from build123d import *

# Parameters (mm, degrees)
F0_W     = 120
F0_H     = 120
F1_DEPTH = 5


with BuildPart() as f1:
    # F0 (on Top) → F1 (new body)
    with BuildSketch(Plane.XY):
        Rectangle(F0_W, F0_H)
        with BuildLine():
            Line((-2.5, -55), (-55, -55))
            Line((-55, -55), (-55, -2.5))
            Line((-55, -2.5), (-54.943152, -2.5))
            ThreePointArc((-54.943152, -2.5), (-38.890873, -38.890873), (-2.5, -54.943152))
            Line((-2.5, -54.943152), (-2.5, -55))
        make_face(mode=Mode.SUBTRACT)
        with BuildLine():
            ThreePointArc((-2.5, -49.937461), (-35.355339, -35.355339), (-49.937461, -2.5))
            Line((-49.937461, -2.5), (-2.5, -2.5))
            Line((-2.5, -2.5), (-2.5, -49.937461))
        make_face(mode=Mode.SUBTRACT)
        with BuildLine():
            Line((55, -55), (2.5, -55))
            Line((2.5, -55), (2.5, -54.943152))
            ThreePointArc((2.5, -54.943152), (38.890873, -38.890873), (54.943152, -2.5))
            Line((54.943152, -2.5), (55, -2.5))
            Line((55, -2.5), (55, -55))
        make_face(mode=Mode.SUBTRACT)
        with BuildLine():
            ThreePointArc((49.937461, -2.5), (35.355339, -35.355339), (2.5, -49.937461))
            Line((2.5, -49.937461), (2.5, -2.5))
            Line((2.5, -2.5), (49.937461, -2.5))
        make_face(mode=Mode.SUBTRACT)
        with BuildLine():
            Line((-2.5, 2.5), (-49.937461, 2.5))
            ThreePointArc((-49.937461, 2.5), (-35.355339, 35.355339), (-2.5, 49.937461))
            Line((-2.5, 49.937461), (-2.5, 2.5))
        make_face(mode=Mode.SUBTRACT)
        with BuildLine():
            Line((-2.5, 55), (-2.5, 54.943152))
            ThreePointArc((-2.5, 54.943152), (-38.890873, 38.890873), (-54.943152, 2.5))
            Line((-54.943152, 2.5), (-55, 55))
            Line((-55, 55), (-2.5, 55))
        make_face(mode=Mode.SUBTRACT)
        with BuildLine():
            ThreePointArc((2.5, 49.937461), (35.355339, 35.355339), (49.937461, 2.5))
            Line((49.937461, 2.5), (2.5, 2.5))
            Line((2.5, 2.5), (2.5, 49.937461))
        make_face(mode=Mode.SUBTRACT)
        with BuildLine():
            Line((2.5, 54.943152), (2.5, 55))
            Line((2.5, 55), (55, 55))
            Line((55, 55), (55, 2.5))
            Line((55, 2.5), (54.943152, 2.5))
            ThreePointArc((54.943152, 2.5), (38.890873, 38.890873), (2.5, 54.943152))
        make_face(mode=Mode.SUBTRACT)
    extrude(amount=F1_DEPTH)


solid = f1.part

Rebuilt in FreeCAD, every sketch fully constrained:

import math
import FreeCAD as App
import Part
import Sketcher
Q = App.Units.Quantity

doc = App.newDocument("Part")
params = doc.addObject("Spreadsheet::Sheet", "Params")
for row, (alias, value) in enumerate([
    ("sketch1_radius", "54.999998 mm"),
    ("sketch1_radius2", "50.000001 mm"),
    ("sketch1_width", "120 mm"),
    ("sketch1_width2", "52.5 mm"),
    ("pad1_length", "5 mm"),
], start=1):
    params.set(f"A{row}", alias)
    params.set(f"B{row}", "=" + value)
    params.setAlias(f"B{row}", alias)

body = doc.addObject("PartDesign::Body", "Body")

# Sketch on XY plane
sketch1 = doc.addObject("Sketcher::SketchObject", "Sketch")
body.addObject(sketch1)
sketch1.AttachmentSupport = (doc.XY_Plane, [""])
sketch1.MapMode = "FlatFace"
sketch1.addGeometry(Part.LineSegment(App.Vector(-60, 60, 0), App.Vector(-60, -60, 0)), False)
sketch1.addGeometry(Part.LineSegment(App.Vector(-60, -60, 0), App.Vector(60, -60, 0)), False)
sketch1.addGeometry(Part.LineSegment(App.Vector(60, -60, 0), App.Vector(60, 60, 0)), False)
sketch1.addGeometry(Part.LineSegment(App.Vector(60, 60, 0), App.Vector(-60, 60, 0)), False)
sketch1.addGeometry(Part.LineSegment(App.Vector(-2.5, -54.943152, 0), App.Vector(-2.5, -55, 0)), False)
sketch1.addGeometry(Part.LineSegment(App.Vector(-2.5, -55, 0), App.Vector(-55, -55, 0)), False)
sketch1.addGeometry(Part.LineSegment(App.Vector(-55, -55, 0), App.Vector(-55, -2.5, 0)), False)
sketch1.addGeometry(Part.LineSegment(App.Vector(-55, -2.5, 0), App.Vector(-54.943152, -2.5, 0)), False)
sketch1.addGeometry(Part.ArcOfCircle(Part.Circle(App.Vector(-0.000001, -0.000001, 0), App.Vector(0, 0, 1), 54.999998), math.radians(-177.39475), math.radians(-92.60525)), False)
sketch1.addGeometry(Part.LineSegment(App.Vector(-2.5, -2.5, 0), App.Vector(-2.5, -49.937461, 0)), False)
sketch1.addGeometry(Part.ArcOfCircle(Part.Circle(App.Vector(0.000001, 0.000001, 0), App.Vector(0, 0, 1), 50.000001), math.radians(-177.134015), math.radians(-92.865985)), False)
sketch1.addGeometry(Part.LineSegment(App.Vector(-49.937461, -2.5, 0), App.Vector(-2.5, -2.5, 0)), False)
sketch1.addGeometry(Part.LineSegment(App.Vector(55, -2.5, 0), App.Vector(55, -55, 0)), False)
sketch1.addGeometry(Part.LineSegment(App.Vector(55, -55, 0), App.Vector(2.5, -55, 0)), False)
sketch1.addGeometry(Part.LineSegment(App.Vector(2.5, -55, 0), App.Vector(2.5, -54.943152, 0)), False)
sketch1.addGeometry(Part.ArcOfCircle(Part.Circle(App.Vector(0.000001, -0.000001, 0), App.Vector(0, 0, 1), 54.999998), math.radians(-87.39475), math.radians(-2.60525)), False)
sketch1.addGeometry(Part.LineSegment(App.Vector(54.943152, -2.5, 0), App.Vector(55, -2.5, 0)), False)
sketch1.addGeometry(Part.LineSegment(App.Vector(2.5, -2.5, 0), App.Vector(49.937461, -2.5, 0)), False)
sketch1.addGeometry(Part.ArcOfCircle(Part.Circle(App.Vector(-0.000001, 0.000001, 0), App.Vector(0, 0, 1), 50.000001), math.radians(-87.134015), math.radians(-2.865985)), False)
sketch1.addGeometry(Part.LineSegment(App.Vector(2.5, -49.937461, 0), App.Vector(2.5, -2.5, 0)), False)
sketch1.addGeometry(Part.LineSegment(App.Vector(-2.5, 49.937461, 0), App.Vector(-2.5, 2.5, 0)), False)
sketch1.addGeometry(Part.LineSegment(App.Vector(-2.5, 2.5, 0), App.Vector(-49.937461, 2.5, 0)), False)
sketch1.addGeometry(Part.ArcOfCircle(Part.Circle(App.Vector(0.000001, -0.000001, 0), App.Vector(0, 0, 1), 50.000001), math.radians(92.865985), math.radians(177.134015)), False)
sketch1.addGeometry(Part.LineSegment(App.Vector(-55, 55, 0), App.Vector(-2.5, 55, 0)), False)
sketch1.addGeometry(Part.LineSegment(App.Vector(-2.5, 55, 0), App.Vector(-2.5, 54.943152, 0)), False)
sketch1.addGeometry(Part.ArcOfCircle(Part.Circle(App.Vector(-0.000001, 0.000001, 0), App.Vector(0, 0, 1), 54.999998), math.radians(92.60525), math.radians(177.39475)), False)
sketch1.addGeometry(Part.LineSegment(App.Vector(-54.943152, 2.5, 0), App.Vector(-55, 55, 0)), False)
sketch1.addGeometry(Part.LineSegment(App.Vector(2.5, 2.5, 0), App.Vector(2.5, 49.937461, 0)), False)
sketch1.addGeometry(Part.ArcOfCircle(Part.Circle(App.Vector(-0.000001, -0.000001, 0), App.Vector(0, 0, 1), 50.000001), math.radians(2.865985), math.radians(87.134015)), False)
sketch1.addGeometry(Part.LineSegment(App.Vector(49.937461, 2.5, 0), App.Vector(2.5, 2.5, 0)), False)
sketch1.addGeometry(Part.ArcOfCircle(Part.Circle(App.Vector(0.000001, 0.000001, 0), App.Vector(0, 0, 1), 54.999998), math.radians(2.60525), math.radians(87.39475)), False)
sketch1.addGeometry(Part.LineSegment(App.Vector(2.5, 54.943152, 0), App.Vector(2.5, 55, 0)), False)
sketch1.addGeometry(Part.LineSegment(App.Vector(2.5, 55, 0), App.Vector(55, 55, 0)), False)
sketch1.addGeometry(Part.LineSegment(App.Vector(55, 55, 0), App.Vector(55, 2.5, 0)), False)
sketch1.addGeometry(Part.LineSegment(App.Vector(55, 2.5, 0), App.Vector(54.943152, 2.5, 0)), False)
sketch1.addConstraint(Sketcher.Constraint("Coincident", 0, 2, 1, 1))
sketch1.addConstraint(Sketcher.Constraint("Coincident", 1, 2, 2, 1))
sketch1.addConstraint(Sketcher.Constraint("Coincident", 2, 2, 3, 1))
sketch1.addConstraint(Sketcher.Constraint("Coincident", 3, 2, 0, 1))
sketch1.addConstraint(Sketcher.Constraint("Coincident", 4, 2, 5, 1))
sketch1.addConstraint(Sketcher.Constraint("Coincident", 5, 2, 6, 1))
sketch1.addConstraint(Sketcher.Constraint("Coincident", 6, 2, 7, 1))
sketch1.addConstraint(Sketcher.Constraint("Coincident", 7, 2, 8, 1))
sketch1.addConstraint(Sketcher.Constraint("Coincident", 8, 2, 4, 1))
sketch1.addConstraint(Sketcher.Constraint("Coincident", 9, 2, 10, 2))
sketch1.addConstraint(Sketcher.Constraint("Coincident", 10, 1, 11, 1))
sketch1.addConstraint(Sketcher.Constraint("Coincident", 11, 2, 9, 1))
sketch1.addConstraint(Sketcher.Constraint("Coincident", 12, 2, 13, 1))
sketch1.addConstraint(Sketcher.Constraint("Coincident", 13, 2, 14, 1))
sketch1.addConstraint(Sketcher.Constraint("Coincident", 14, 2, 15, 1))
sketch1.addConstraint(Sketcher.Constraint("Coincident", 15, 2, 16, 1))
sketch1.addConstraint(Sketcher.Constraint("Coincident", 16, 2, 12, 1))
sketch1.addConstraint(Sketcher.Constraint("Coincident", 17, 2, 18, 2))
sketch1.addConstraint(Sketcher.Constraint("Coincident", 18, 1, 19, 1))
sketch1.addConstraint(Sketcher.Constraint("Coincident", 19, 2, 17, 1))
sketch1.addConstraint(Sketcher.Constraint("Coincident", 20, 2, 21, 1))
sketch1.addConstraint(Sketcher.Constraint("Coincident", 21, 2, 22, 2))
sketch1.addConstraint(Sketcher.Constraint("Coincident", 22, 1, 20, 1))
sketch1.addConstraint(Sketcher.Constraint("Coincident", 23, 2, 24, 1))
sketch1.addConstraint(Sketcher.Constraint("Coincident", 24, 2, 25, 1))
sketch1.addConstraint(Sketcher.Constraint("Coincident", 25, 2, 26, 1))
sketch1.addConstraint(Sketcher.Constraint("Coincident", 26, 2, 23, 1))
sketch1.addConstraint(Sketcher.Constraint("Coincident", 27, 2, 28, 2))
sketch1.addConstraint(Sketcher.Constraint("Coincident", 28, 1, 29, 1))
sketch1.addConstraint(Sketcher.Constraint("Coincident", 29, 2, 27, 1))
sketch1.addConstraint(Sketcher.Constraint("Coincident", 30, 2, 31, 1))
sketch1.addConstraint(Sketcher.Constraint("Coincident", 31, 2, 32, 1))
sketch1.addConstraint(Sketcher.Constraint("Coincident", 32, 2, 33, 1))
sketch1.addConstraint(Sketcher.Constraint("Coincident", 33, 2, 34, 1))
sketch1.addConstraint(Sketcher.Constraint("Coincident", 34, 2, 30, 1))
sketch1.addConstraint(Sketcher.Constraint("Vertical", 0))
sketch1.addConstraint(Sketcher.Constraint("Horizontal", 1))
sketch1.addConstraint(Sketcher.Constraint("Vertical", 2))
sketch1.addConstraint(Sketcher.Constraint("Horizontal", 3))
sketch1.addConstraint(Sketcher.Constraint("Vertical", 4))
sketch1.addConstraint(Sketcher.Constraint("Horizontal", 5))
sketch1.addConstraint(Sketcher.Constraint("Vertical", 6))
sketch1.addConstraint(Sketcher.Constraint("Horizontal", 7))
sketch1.addConstraint(Sketcher.Constraint("Vertical", 9))
sketch1.addConstraint(Sketcher.Constraint("Horizontal", 11))
sketch1.addConstraint(Sketcher.Constraint("Vertical", 12))
sketch1.addConstraint(Sketcher.Constraint("Horizontal", 13))
sketch1.addConstraint(Sketcher.Constraint("Vertical", 14))
sketch1.addConstraint(Sketcher.Constraint("Horizontal", 16))
sketch1.addConstraint(Sketcher.Constraint("Horizontal", 17))
sketch1.addConstraint(Sketcher.Constraint("Vertical", 19))
sketch1.addConstraint(Sketcher.Constraint("Vertical", 20))
sketch1.addConstraint(Sketcher.Constraint("Horizontal", 21))
sketch1.addConstraint(Sketcher.Constraint("Horizontal", 23))
sketch1.addConstraint(Sketcher.Constraint("Vertical", 24))
sketch1.addConstraint(Sketcher.Constraint("Vertical", 27))
sketch1.addConstraint(Sketcher.Constraint("Horizontal", 29))
sketch1.addConstraint(Sketcher.Constraint("Vertical", 31))
sketch1.addConstraint(Sketcher.Constraint("Horizontal", 32))
sketch1.addConstraint(Sketcher.Constraint("Vertical", 33))
sketch1.addConstraint(Sketcher.Constraint("Horizontal", 34))
sketch1.addConstraint(Sketcher.Constraint("Coincident", 8, 3, -1, 1))
sketch1.addConstraint(Sketcher.Constraint("Coincident", 10, 3, -1, 1))
sketch1.addConstraint(Sketcher.Constraint("Coincident", 15, 3, -1, 1))
sketch1.addConstraint(Sketcher.Constraint("Coincident", 18, 3, -1, 1))
sketch1.addConstraint(Sketcher.Constraint("Coincident", 22, 3, -1, 1))
sketch1.addConstraint(Sketcher.Constraint("Coincident", 25, 3, -1, 1))
sketch1.addConstraint(Sketcher.Constraint("Coincident", 28, 3, -1, 1))
sketch1.addConstraint(Sketcher.Constraint("Coincident", 30, 3, -1, 1))
sketch1.addConstraint(Sketcher.Constraint("Equal", 8, 15))
sketch1.addConstraint(Sketcher.Constraint("Equal", 10, 18))
sketch1.addConstraint(Sketcher.Constraint("Equal", 18, 22))
sketch1.addConstraint(Sketcher.Constraint("Equal", 15, 25))
sketch1.addConstraint(Sketcher.Constraint("Equal", 22, 28))
sketch1.addConstraint(Sketcher.Constraint("Equal", 25, 30))
sketch1.addConstraint(Sketcher.Constraint("Symmetric", 0, 2, 2, 2, -1, 1))
sketch1.addConstraint(Sketcher.Constraint("Symmetric", 19, 2, 20, 2, -1, 1))
sketch1.addConstraint(Sketcher.Constraint("Symmetric", 13, 2, 23, 2, -1, 1))
sketch1.addConstraint(Sketcher.Constraint("Symmetric", 11, 2, 29, 2, -1, 1))
sketch1.addConstraint(Sketcher.Constraint("Symmetric", 4, 2, 31, 2, -1, 1))
sketch1.addConstraint(Sketcher.Constraint("Symmetric", 6, 2, 33, 2, -1, 1))
sketch1.addConstraint(Sketcher.Constraint("Symmetric", 5, 2, 12, 2, -2))
sketch1.addConstraint(Sketcher.Constraint("Symmetric", 11, 2, 19, 2, -2))
sketch1.addConstraint(Sketcher.Constraint("Horizontal", 7, 2, 10, 1))
sketch1.addConstraint(Sketcher.Constraint("Horizontal", 8, 2, 14, 2))
sketch1.addConstraint(Sketcher.Constraint("Horizontal", 11, 2, 15, 2))
sketch1.addConstraint(Sketcher.Constraint("Horizontal", 21, 2, 25, 2))
sketch1.addConstraint(Sketcher.Constraint("Vertical", 8, 2, 9, 2))
sketch1.addConstraint(Sketcher.Constraint("Vertical", 6, 2, 26, 2))
sketch1.addConstraint(Sketcher.Constraint("Equal", 3, 0))
sketch1.addConstraint(Sketcher.Constraint("Equal", 34, 4))
sketch1.addConstraint(Sketcher.Constraint("Equal", 32, 6))
sketch1.addConstraint(Sketcher.Constraint("Radius", 8, Q("54.999998 mm")))
sketch1.addConstraint(Sketcher.Constraint("Radius", 10, Q("50.000001 mm")))
sketch1.addConstraint(Sketcher.Constraint("DistanceX", 1, 1, 1, 2, Q("120 mm")))
sketch1.addConstraint(Sketcher.Constraint("DistanceX", 5, 2, 5, 1, Q("52.5 mm")))
sketch1.addConstraint(Sketcher.Constraint("DistanceY", 4, 2, -1, 1, Q("55 mm")))
sketch1.setExpression("Constraints[92]", "Params.sketch1_radius")
sketch1.setExpression("Constraints[93]", "Params.sketch1_radius2")
sketch1.setExpression("Constraints[94]", "Params.sketch1_width")
sketch1.setExpression("Constraints[95]", "Params.sketch1_width2")
pad1 = doc.addObject("PartDesign::Pad", "Pad")
body.addObject(pad1)
pad1.Profile = sketch1
pad1.setExpression("Length", "Params.pad1_length")

doc.recompute()
